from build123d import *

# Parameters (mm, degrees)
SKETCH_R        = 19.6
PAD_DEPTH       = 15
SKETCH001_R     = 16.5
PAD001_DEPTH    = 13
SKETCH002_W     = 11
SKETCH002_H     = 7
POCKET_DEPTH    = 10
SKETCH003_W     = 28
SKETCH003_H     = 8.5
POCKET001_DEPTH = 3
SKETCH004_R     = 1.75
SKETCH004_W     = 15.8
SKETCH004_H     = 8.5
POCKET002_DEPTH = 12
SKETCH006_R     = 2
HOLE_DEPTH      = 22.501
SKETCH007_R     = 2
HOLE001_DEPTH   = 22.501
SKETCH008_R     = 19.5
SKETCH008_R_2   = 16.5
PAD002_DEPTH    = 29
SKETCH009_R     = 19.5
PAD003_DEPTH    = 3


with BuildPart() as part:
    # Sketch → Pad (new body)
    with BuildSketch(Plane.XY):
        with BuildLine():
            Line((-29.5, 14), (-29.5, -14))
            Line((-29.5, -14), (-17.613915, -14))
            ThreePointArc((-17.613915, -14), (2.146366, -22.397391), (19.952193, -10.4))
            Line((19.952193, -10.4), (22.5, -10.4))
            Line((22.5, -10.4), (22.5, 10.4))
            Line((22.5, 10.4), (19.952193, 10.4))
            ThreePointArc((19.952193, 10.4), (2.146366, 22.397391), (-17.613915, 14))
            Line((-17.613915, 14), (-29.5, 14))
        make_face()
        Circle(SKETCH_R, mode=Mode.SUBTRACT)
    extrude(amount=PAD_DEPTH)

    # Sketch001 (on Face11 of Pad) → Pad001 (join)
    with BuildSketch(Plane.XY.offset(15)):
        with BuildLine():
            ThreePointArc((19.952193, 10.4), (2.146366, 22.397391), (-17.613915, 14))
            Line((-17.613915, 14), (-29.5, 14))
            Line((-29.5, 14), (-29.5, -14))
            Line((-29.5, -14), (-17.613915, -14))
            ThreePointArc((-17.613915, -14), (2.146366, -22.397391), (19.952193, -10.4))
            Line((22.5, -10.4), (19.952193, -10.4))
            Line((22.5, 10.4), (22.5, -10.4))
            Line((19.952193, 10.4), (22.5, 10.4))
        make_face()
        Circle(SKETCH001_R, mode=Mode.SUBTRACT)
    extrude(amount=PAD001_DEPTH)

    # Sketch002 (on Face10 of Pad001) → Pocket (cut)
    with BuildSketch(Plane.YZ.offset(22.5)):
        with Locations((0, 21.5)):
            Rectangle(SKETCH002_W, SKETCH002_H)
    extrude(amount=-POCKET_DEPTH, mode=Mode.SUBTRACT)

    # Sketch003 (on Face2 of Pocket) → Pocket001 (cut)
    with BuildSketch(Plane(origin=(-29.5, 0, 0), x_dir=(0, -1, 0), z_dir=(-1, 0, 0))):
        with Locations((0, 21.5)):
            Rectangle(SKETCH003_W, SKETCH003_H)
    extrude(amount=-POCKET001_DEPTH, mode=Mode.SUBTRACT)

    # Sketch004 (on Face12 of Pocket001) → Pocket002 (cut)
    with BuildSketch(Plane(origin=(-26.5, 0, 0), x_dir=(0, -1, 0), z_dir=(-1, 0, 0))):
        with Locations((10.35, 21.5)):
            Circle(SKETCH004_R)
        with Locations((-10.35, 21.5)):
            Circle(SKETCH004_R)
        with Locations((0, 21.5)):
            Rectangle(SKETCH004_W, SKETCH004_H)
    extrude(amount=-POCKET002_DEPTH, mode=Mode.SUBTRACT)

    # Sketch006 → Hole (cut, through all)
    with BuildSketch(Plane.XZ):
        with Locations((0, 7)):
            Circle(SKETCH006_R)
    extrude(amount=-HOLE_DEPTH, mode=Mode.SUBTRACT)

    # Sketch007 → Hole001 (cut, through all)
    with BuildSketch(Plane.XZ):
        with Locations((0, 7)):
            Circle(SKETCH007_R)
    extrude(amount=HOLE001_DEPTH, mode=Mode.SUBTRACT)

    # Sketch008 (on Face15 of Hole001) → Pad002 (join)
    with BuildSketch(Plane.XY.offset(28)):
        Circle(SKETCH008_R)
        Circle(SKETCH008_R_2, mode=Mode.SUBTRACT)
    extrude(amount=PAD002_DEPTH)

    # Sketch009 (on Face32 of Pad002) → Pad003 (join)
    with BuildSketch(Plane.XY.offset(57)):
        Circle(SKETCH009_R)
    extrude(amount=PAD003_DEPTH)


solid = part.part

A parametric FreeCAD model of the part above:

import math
import FreeCAD as App
import Part
import Sketcher
from FreeCAD import Vector

doc = App.newDocument("Part")
body = doc.addObject("PartDesign::Body", "Body")

# Sketch on XY plane
sketch1 = doc.addObject("Sketcher::SketchObject", "Sketch")
body.addObject(sketch1)
sketch1.AttachmentSupport = (doc.XY_Plane, [""])
sketch1.MapMode = "FlatFace"
sketch1.addGeometry([
    Part.LineSegment(Vector(-29.5, 14, 0), Vector(-29.5, -14, 0)),  # 0
    Part.LineSegment(Vector(-29.5, -14, 0), Vector(-17.6, -14, 0)),  # 1
    Part.ArcOfCircle(Part.Circle(Vector(0, 0, 0), Vector(0, 0, 1), 22.5), math.radians(-142), math.radians(-28)),  # 2
    Part.LineSegment(Vector(20, -10.4, 0), Vector(22.5, -10.4, 0)),  # 3
    Part.LineSegment(Vector(22.5, -10.4, 0), Vector(22.5, 10.4, 0)),  # 4
    Part.LineSegment(Vector(22.5, 10.4, 0), Vector(20, 10.4, 0)),  # 5
    Part.ArcOfCircle(Part.Circle(Vector(0, 0, 0), Vector(0, 0, 1), 22.5), math.radians(28), math.radians(142)),  # 6
    Part.LineSegment(Vector(-17.6, 14, 0), Vector(-29.5, 14, 0)),  # 7
    Part.Circle(Vector(0, 0, 0), Vector(0, 0, 1), 19.6),  # 8
], False)
sketch1.addConstraint([
    Sketcher.Constraint("Coincident", 0, 2, 1, 1),
    Sketcher.Constraint("Coincident", 1, 2, 2, 1),
    Sketcher.Constraint("Coincident", 2, 2, 3, 1),
    Sketcher.Constraint("Coincident", 3, 2, 4, 1),
    Sketcher.Constraint("Coincident", 4, 2, 5, 1),
    Sketcher.Constraint("Coincident", 5, 2, 6, 1),
    Sketcher.Constraint("Coincident", 6, 2, 7, 1),
    Sketcher.Constraint("Coincident", 7, 2, 0, 1),
    Sketcher.Constraint("Vertical", 0),
    Sketcher.Constraint("Horizontal", 1),
    Sketcher.Constraint("Horizontal", 3),
    Sketcher.Constraint("Vertical", 4),
    Sketcher.Constraint("Horizontal", 5),
    Sketcher.Constraint("Horizontal", 7),
    Sketcher.Constraint("Coincident", 2, 3, -1, 1),
    Sketcher.Constraint("Coincident", 6, 3, -1, 1),
    Sketcher.Constraint("Coincident", 8, 3, -1, 1),
    Sketcher.Constraint("Equal", 2, 6),
    Sketcher.Constraint("Vertical", 2, 2, 5, 2),
    Sketcher.Constraint("Vertical", 1, 2, 6, 2),
    Sketcher.Constraint("Diameter", 8, 39.2),
    Sketcher.Constraint("Radius", 2, 22.5),
    Sketcher.Constraint("DistanceY", 0, 2, 0, 1, 28.0),
    Sketcher.Constraint("DistanceY", 4, 1, 4, 2, 20.8),
    Sketcher.Constraint("DistanceX", 0, 2, -1, 1, 29.5),
    Sketcher.Constraint("DistanceX", -1, 1, 3, 2, 22.5),
])
pad1 = doc.addObject("PartDesign::Pad", "Pad")
body.addObject(pad1)
pad1.Profile = sketch1
pad1.Length = 15

# Sketch on XY plane
sketch2 = doc.addObject("Sketcher::SketchObject", "Sketch001")
body.addObject(sketch2)
sketch2.AttachmentSupport = (doc.XY_Plane, [""])
sketch2.MapMode = "FlatFace"
sketch2.AttachmentOffset = App.Placement(Vector(0, 0, 15), App.Rotation())
sketch2.addGeometry([
    Part.ArcOfCircle(Part.Circle(Vector(0, 0, 0), Vector(0, 0, 1), 22.5), math.radians(28), math.radians(142)),  # 0
    Part.LineSegment(Vector(-17.6, 14, 0), Vector(-29.5, 14, 0)),  # 1
    Part.LineSegment(Vector(-29.5, 14, 0), Vector(-29.5, -14, 0)),  # 2
    Part.LineSegment(Vector(-29.5, -14, 0), Vector(-17.6, -14, 0)),  # 3
    Part.ArcOfCircle(Part.Circle(Vector(0, 0, 0), Vector(0, 0, 1), 22.5), math.radians(-142), math.radians(-28)),  # 4
    Part.LineSegment(Vector(20, -10.4, 0), Vector(22.5, -10.4, 0)),  # 5
    Part.LineSegment(Vector(22.5, -10.4, 0), Vector(22.5, 10.4, 0)),  # 6
    Part.LineSegment(Vector(22.5, 10.4, 0), Vector(20, 10.4, 0)),  # 7
    Part.Circle(Vector(0, 0, 0), Vector(0, 0, 1), 16.5),  # 8
], False)
sketch2.addConstraint([
    Sketcher.Constraint("Coincident", 0, 2, 1, 1),
    Sketcher.Constraint("Coincident", 1, 2, 2, 1),
    Sketcher.Constraint("Coincident", 2, 2, 3, 1),
    Sketcher.Constraint("Coincident", 3, 2, 4, 1),
    Sketcher.Constraint("Coincident", 4, 2, 5, 1),
    Sketcher.Constraint("Coincident", 5, 2, 6, 1),
    Sketcher.Constraint("Coincident", 6, 2, 7, 1),
    Sketcher.Constraint("Coincident", 7, 2, 0, 1),
    Sketcher.Constraint("Horizontal", 1),
    Sketcher.Constraint("Vertical", 2),
    Sketcher.Constraint("Horizontal", 3),
    Sketcher.Constraint("Horizontal", 5),
    Sketcher.Constraint("Vertical", 6),
    Sketcher.Constraint("Horizontal", 7),
    Sketcher.Constraint("Coincident", 0, 3, -1, 1),
    Sketcher.Constraint("Coincident", 4, 3, -1, 1),
    Sketcher.Constraint("Coincident", 8, 3, -1, 1),
    Sketcher.Constraint("Equal", 0, 4),
    Sketcher.Constraint("Vertical", 0, 2, 3, 2),
    Sketcher.Constraint("Vertical", 4, 2, 7, 2),
    Sketcher.Constraint("Diameter", 8, 33.0),
    Sketcher.Constraint("Radius", 0, 22.5),
    Sketcher.Constraint("DistanceY", 2, 2, 2, 1, 28.0),
    Sketcher.Constraint("DistanceY", 6, 1, 6, 2, 20.8),
    Sketcher.Constraint("DistanceX", 1, 2, -1, 1, 29.5),
    Sketcher.Constraint("DistanceX", -1, 1, 5, 2, 22.5),
])
pad2 = doc.addObject("PartDesign::Pad", "Pad001")
body.addObject(pad2)
pad2.Profile = sketch2
pad2.Length = 13

# Sketch on YZ plane
sketch3 = doc.addObject("Sketcher::SketchObject", "Sketch002")
body.addObject(sketch3)
sketch3.AttachmentSupport = (doc.YZ_Plane, [""])
sketch3.MapMode = "FlatFace"
sketch3.AttachmentOffset = App.Placement(Vector(0, 0, 22.5), App.Rotation())
sketch3.addGeometry([
    Part.LineSegment(Vector(-6, 25, 0), Vector(-6, 18, 0)),
    Part.LineSegment(Vector(-6, 18, 0), Vector(6, 18, 0)),
    Part.LineSegment(Vector(6, 18, 0), Vector(6, 25, 0)),
    Part.LineSegment(Vector(6, 25, 0), Vector(-6, 25, 0)),
], False)
sketch3.addConstraint([
    Sketcher.Constraint("Coincident", 0, 2, 1, 1),
    Sketcher.Constraint("Coincident", 1, 2, 2, 1),
    Sketcher.Constraint("Coincident", 2, 2, 3, 1),
    Sketcher.Constraint("Coincident", 3, 2, 0, 1),
    Sketcher.Constraint("Vertical", 0),
    Sketcher.Constraint("Horizontal", 1),
    Sketcher.Constraint("Vertical", 2),
    Sketcher.Constraint("Horizontal", 3),
    Sketcher.Constraint("DistanceX", 1, 1, 1, 2, 11.0),
    Sketcher.Constraint("DistanceY", 0, 2, 0, 1, 7.0),
    Sketcher.Constraint("DistanceY", -1, 1, 0, 2, 18.0),
    Sketcher.Constraint("DistanceX", 0, 2, -1, 1, 5.5),
])
pocket1 = doc.addObject("PartDesign::Pocket", "Pocket")
body.addObject(pocket1)
pocket1.Profile = sketch3
pocket1.Length = 10

# Sketch on YZ plane
sketch4 = doc.addObject("Sketcher::SketchObject", "Sketch003")
body.addObject(sketch4)
sketch4.AttachmentSupport = (doc.YZ_Plane, [""])
sketch4.MapMode = "FlatFace"
sketch4.AttachmentOffset = App.Placement(Vector(0, 0, -29.5), App.Rotation())
sketch4.addGeometry([
    Part.LineSegment(Vector(14, 26, 0), Vector(14, 17, 0)),
    Part.LineSegment(Vector(14, 17, 0), Vector(-14, 17, 0)),
    Part.LineSegment(Vector(-14, 17, 0), Vector(-14, 26, 0)),
    Part.LineSegment(Vector(-14, 26, 0), Vector(14, 26, 0)),
], False)
sketch4.addConstraint([
    Sketcher.Constraint("Coincident", 0, 2, 1, 1),
    Sketcher.Constraint("Coincident", 1, 2, 2, 1),
    Sketcher.Constraint("Coincident", 2, 2, 3, 1),
    Sketcher.Constraint("Coincident", 3, 2, 0, 1),
    Sketcher.Constraint("Vertical", 0),
    Sketcher.Constraint("Horizontal", 1),
    Sketcher.Constraint("Vertical", 2),
    Sketcher.Constraint("Horizontal", 3),
    Sketcher.Constraint("DistanceX", 1, 2, 1, 1, 28.0),
    Sketcher.Constraint("DistanceY", 0, 2, 0, 1, 8.5),
    Sketcher.Constraint("DistanceX", -1, 1, 0, 2, 14.0),
    Sketcher.Constraint("DistanceY", -1, 1, 0, 2, 17.25),
])
pocket2 = doc.addObject("PartDesign::Pocket", "Pocket001")
body.addObject(pocket2)
pocket2.Profile = sketch4
pocket2.Length = 3
pocket2.Reversed = True

# Sketch on YZ plane
sketch5 = doc.addObject("Sketcher::SketchObject", "Sketch004")
body.addObject(sketch5)
sketch5.AttachmentSupport = (doc.YZ_Plane, [""])
sketch5.MapMode = "FlatFace"
sketch5.AttachmentOffset = App.Placement(Vector(0, 0, -26.5), App.Rotation())
sketch5.addGeometry([
    Part.Circle(Vector(-10.3, 21.5, 0), Vector(0, 0, 1), 1.8),  # 0
    Part.Circle(Vector(10.3, 21.5, 0), Vector(0, 0, 1), 1.8),  # 1
    Part.LineSegment(Vector(7.9, 25.8, 0), Vector(7.9, 17.2, 0)),  # 2
    Part.LineSegment(Vector(7.9, 17.2, 0), Vector(-7.9, 17.2, 0)),  # 3
    Part.LineSegment(Vector(-7.9, 17.2, 0), Vector(-7.9, 25.8, 0)),  # 4
    Part.LineSegment(Vector(-7.9, 25.8, 0), Vector(7.9, 25.8, 0)),  # 5
], False)
sketch5.addConstraint([
    Sketcher.Constraint("Coincident", 2, 2, 3, 1),
    Sketcher.Constraint("Coincident", 3, 2, 4, 1),
    Sketcher.Constraint("Coincident", 4, 2, 5, 1),
    Sketcher.Constraint("Coincident", 5, 2, 2, 1),
    Sketcher.Constraint("Vertical", 2),
    Sketcher.Constraint("Horizontal", 3),
    Sketcher.Constraint("Vertical", 4),
    Sketcher.Constraint("Horizontal", 5),
    Sketcher.Constraint("Equal", 0, 1),
    Sketcher.Constraint("Symmetric", 0, 3, 1, 3, -2),
    Sketcher.Constraint("Diameter", 0, 3.5),
    Sketcher.Constraint("DistanceX", 3, 2, 3, 1, 15.8),
    Sketcher.Constraint("DistanceY", 2, 2, 2, 1, 8.5),
    Sketcher.Constraint("DistanceY", -1, 1, 0, 3, 21.5),
    Sketcher.Constraint("DistanceX", -1, 1, 2, 2, 7.9),
    Sketcher.Constraint("DistanceX", 0, 3, 1, 3, 20.7),
    Sketcher.Constraint("DistanceY", -1, 1, 2, 2, 17.25),
])
pocket3 = doc.addObject("PartDesign::Pocket", "Pocket002")
body.addObject(pocket3)
pocket3.Profile = sketch5
pocket3.Length = 12
pocket3.Reversed = True

# Sketch on XZ plane
sketch6 = doc.addObject("Sketcher::SketchObject", "Sketch005")
body.addObject(sketch6)
sketch6.AttachmentSupport = (doc.XZ_Plane, [""])
sketch6.MapMode = "FlatFace"
sketch6.addGeometry(Part.Circle(Vector(0, 7, 0), Vector(0, 0, 1), 2), False)
sketch6.addConstraint([
    Sketcher.Constraint("PointOnObject", 0, 3, -2),
    Sketcher.Constraint("Diameter", 0, 4.0),
    Sketcher.Constraint("DistanceY", -1, 1, 0, 3, 7.0),
])
pocket4 = doc.addObject("PartDesign::Pocket", "Pocket003")
body.addObject(pocket4)
pocket4.Profile = sketch6
pocket4.Type = "ThroughAll"

# Sketch on XZ plane
sketch7 = doc.addObject("Sketcher::SketchObject", "Sketch006")
body.addObject(sketch7)
sketch7.AttachmentSupport = (doc.XZ_Plane, [""])
sketch7.MapMode = "FlatFace"
sketch7.addGeometry(Part.Circle(Vector(0, 7, 0), Vector(0, 0, 1), 2), False)
sketch7.addConstraint([
    Sketcher.Constraint("PointOnObject", 0, 3, -2),
    Sketcher.Constraint("Diameter", 0, 4.0),
    Sketcher.Constraint("DistanceY", -1, 1, 0, 3, 7.0),
])
pocket5 = doc.addObject("PartDesign::Pocket", "Pocket004")
body.addObject(pocket5)
pocket5.Profile = sketch7
pocket5.Type = "ThroughAll"
pocket5.Reversed = True

# Sketch on XY plane
sketch8 = doc.addObject("Sketcher::SketchObject", "Sketch007")
body.addObject(sketch8)
sketch8.AttachmentSupport = (doc.XY_Plane, [""])
sketch8.MapMode = "FlatFace"
sketch8.AttachmentOffset = App.Placement(Vector(0, 0, 28), App.Rotation())
sketch8.addGeometry([
    Part.Circle(Vector(0, 0, 0), Vector(0, 0, 1), 20),
    Part.Circle(Vector(0, 0, 0), Vector(0, 0, 1), 16),
], False)
sketch8.addConstraint([
    Sketcher.Constraint("Coincident", 0, 3, -1, 1),
    Sketcher.Constraint("Coincident", 1, 3, -1, 1),
    Sketcher.Constraint("Diameter", 0, 39.0),
    Sketcher.Constraint("Diameter", 1, 33.0),
])
pad3 = doc.addObject("PartDesign::Pad", "Pad002")
body.addObject(pad3)
pad3.Profile = sketch8
pad3.Length = 29

# Sketch on XY plane
sketch9 = doc.addObject("Sketcher::SketchObject", "Sketch008")
body.addObject(sketch9)
sketch9.AttachmentSupport = (doc.XY_Plane, [""])
sketch9.MapMode = "FlatFace"
sketch9.AttachmentOffset = App.Placement(Vector(0, 0, 57), App.Rotation())
sketch9.addGeometry(Part.Circle(Vector(0, 0, 0), Vector(0, 0, 1), 20), False)
sketch9.addConstraint([
    Sketcher.Constraint("Coincident", 0, 3, -1, 1),
    Sketcher.Constraint("Diameter", 0, 39.0),
])
pad4 = doc.addObject("PartDesign::Pad", "Pad003")
body.addObject(pad4)
pad4.Profile = sketch9
pad4.Length = 3

doc.recompute()
